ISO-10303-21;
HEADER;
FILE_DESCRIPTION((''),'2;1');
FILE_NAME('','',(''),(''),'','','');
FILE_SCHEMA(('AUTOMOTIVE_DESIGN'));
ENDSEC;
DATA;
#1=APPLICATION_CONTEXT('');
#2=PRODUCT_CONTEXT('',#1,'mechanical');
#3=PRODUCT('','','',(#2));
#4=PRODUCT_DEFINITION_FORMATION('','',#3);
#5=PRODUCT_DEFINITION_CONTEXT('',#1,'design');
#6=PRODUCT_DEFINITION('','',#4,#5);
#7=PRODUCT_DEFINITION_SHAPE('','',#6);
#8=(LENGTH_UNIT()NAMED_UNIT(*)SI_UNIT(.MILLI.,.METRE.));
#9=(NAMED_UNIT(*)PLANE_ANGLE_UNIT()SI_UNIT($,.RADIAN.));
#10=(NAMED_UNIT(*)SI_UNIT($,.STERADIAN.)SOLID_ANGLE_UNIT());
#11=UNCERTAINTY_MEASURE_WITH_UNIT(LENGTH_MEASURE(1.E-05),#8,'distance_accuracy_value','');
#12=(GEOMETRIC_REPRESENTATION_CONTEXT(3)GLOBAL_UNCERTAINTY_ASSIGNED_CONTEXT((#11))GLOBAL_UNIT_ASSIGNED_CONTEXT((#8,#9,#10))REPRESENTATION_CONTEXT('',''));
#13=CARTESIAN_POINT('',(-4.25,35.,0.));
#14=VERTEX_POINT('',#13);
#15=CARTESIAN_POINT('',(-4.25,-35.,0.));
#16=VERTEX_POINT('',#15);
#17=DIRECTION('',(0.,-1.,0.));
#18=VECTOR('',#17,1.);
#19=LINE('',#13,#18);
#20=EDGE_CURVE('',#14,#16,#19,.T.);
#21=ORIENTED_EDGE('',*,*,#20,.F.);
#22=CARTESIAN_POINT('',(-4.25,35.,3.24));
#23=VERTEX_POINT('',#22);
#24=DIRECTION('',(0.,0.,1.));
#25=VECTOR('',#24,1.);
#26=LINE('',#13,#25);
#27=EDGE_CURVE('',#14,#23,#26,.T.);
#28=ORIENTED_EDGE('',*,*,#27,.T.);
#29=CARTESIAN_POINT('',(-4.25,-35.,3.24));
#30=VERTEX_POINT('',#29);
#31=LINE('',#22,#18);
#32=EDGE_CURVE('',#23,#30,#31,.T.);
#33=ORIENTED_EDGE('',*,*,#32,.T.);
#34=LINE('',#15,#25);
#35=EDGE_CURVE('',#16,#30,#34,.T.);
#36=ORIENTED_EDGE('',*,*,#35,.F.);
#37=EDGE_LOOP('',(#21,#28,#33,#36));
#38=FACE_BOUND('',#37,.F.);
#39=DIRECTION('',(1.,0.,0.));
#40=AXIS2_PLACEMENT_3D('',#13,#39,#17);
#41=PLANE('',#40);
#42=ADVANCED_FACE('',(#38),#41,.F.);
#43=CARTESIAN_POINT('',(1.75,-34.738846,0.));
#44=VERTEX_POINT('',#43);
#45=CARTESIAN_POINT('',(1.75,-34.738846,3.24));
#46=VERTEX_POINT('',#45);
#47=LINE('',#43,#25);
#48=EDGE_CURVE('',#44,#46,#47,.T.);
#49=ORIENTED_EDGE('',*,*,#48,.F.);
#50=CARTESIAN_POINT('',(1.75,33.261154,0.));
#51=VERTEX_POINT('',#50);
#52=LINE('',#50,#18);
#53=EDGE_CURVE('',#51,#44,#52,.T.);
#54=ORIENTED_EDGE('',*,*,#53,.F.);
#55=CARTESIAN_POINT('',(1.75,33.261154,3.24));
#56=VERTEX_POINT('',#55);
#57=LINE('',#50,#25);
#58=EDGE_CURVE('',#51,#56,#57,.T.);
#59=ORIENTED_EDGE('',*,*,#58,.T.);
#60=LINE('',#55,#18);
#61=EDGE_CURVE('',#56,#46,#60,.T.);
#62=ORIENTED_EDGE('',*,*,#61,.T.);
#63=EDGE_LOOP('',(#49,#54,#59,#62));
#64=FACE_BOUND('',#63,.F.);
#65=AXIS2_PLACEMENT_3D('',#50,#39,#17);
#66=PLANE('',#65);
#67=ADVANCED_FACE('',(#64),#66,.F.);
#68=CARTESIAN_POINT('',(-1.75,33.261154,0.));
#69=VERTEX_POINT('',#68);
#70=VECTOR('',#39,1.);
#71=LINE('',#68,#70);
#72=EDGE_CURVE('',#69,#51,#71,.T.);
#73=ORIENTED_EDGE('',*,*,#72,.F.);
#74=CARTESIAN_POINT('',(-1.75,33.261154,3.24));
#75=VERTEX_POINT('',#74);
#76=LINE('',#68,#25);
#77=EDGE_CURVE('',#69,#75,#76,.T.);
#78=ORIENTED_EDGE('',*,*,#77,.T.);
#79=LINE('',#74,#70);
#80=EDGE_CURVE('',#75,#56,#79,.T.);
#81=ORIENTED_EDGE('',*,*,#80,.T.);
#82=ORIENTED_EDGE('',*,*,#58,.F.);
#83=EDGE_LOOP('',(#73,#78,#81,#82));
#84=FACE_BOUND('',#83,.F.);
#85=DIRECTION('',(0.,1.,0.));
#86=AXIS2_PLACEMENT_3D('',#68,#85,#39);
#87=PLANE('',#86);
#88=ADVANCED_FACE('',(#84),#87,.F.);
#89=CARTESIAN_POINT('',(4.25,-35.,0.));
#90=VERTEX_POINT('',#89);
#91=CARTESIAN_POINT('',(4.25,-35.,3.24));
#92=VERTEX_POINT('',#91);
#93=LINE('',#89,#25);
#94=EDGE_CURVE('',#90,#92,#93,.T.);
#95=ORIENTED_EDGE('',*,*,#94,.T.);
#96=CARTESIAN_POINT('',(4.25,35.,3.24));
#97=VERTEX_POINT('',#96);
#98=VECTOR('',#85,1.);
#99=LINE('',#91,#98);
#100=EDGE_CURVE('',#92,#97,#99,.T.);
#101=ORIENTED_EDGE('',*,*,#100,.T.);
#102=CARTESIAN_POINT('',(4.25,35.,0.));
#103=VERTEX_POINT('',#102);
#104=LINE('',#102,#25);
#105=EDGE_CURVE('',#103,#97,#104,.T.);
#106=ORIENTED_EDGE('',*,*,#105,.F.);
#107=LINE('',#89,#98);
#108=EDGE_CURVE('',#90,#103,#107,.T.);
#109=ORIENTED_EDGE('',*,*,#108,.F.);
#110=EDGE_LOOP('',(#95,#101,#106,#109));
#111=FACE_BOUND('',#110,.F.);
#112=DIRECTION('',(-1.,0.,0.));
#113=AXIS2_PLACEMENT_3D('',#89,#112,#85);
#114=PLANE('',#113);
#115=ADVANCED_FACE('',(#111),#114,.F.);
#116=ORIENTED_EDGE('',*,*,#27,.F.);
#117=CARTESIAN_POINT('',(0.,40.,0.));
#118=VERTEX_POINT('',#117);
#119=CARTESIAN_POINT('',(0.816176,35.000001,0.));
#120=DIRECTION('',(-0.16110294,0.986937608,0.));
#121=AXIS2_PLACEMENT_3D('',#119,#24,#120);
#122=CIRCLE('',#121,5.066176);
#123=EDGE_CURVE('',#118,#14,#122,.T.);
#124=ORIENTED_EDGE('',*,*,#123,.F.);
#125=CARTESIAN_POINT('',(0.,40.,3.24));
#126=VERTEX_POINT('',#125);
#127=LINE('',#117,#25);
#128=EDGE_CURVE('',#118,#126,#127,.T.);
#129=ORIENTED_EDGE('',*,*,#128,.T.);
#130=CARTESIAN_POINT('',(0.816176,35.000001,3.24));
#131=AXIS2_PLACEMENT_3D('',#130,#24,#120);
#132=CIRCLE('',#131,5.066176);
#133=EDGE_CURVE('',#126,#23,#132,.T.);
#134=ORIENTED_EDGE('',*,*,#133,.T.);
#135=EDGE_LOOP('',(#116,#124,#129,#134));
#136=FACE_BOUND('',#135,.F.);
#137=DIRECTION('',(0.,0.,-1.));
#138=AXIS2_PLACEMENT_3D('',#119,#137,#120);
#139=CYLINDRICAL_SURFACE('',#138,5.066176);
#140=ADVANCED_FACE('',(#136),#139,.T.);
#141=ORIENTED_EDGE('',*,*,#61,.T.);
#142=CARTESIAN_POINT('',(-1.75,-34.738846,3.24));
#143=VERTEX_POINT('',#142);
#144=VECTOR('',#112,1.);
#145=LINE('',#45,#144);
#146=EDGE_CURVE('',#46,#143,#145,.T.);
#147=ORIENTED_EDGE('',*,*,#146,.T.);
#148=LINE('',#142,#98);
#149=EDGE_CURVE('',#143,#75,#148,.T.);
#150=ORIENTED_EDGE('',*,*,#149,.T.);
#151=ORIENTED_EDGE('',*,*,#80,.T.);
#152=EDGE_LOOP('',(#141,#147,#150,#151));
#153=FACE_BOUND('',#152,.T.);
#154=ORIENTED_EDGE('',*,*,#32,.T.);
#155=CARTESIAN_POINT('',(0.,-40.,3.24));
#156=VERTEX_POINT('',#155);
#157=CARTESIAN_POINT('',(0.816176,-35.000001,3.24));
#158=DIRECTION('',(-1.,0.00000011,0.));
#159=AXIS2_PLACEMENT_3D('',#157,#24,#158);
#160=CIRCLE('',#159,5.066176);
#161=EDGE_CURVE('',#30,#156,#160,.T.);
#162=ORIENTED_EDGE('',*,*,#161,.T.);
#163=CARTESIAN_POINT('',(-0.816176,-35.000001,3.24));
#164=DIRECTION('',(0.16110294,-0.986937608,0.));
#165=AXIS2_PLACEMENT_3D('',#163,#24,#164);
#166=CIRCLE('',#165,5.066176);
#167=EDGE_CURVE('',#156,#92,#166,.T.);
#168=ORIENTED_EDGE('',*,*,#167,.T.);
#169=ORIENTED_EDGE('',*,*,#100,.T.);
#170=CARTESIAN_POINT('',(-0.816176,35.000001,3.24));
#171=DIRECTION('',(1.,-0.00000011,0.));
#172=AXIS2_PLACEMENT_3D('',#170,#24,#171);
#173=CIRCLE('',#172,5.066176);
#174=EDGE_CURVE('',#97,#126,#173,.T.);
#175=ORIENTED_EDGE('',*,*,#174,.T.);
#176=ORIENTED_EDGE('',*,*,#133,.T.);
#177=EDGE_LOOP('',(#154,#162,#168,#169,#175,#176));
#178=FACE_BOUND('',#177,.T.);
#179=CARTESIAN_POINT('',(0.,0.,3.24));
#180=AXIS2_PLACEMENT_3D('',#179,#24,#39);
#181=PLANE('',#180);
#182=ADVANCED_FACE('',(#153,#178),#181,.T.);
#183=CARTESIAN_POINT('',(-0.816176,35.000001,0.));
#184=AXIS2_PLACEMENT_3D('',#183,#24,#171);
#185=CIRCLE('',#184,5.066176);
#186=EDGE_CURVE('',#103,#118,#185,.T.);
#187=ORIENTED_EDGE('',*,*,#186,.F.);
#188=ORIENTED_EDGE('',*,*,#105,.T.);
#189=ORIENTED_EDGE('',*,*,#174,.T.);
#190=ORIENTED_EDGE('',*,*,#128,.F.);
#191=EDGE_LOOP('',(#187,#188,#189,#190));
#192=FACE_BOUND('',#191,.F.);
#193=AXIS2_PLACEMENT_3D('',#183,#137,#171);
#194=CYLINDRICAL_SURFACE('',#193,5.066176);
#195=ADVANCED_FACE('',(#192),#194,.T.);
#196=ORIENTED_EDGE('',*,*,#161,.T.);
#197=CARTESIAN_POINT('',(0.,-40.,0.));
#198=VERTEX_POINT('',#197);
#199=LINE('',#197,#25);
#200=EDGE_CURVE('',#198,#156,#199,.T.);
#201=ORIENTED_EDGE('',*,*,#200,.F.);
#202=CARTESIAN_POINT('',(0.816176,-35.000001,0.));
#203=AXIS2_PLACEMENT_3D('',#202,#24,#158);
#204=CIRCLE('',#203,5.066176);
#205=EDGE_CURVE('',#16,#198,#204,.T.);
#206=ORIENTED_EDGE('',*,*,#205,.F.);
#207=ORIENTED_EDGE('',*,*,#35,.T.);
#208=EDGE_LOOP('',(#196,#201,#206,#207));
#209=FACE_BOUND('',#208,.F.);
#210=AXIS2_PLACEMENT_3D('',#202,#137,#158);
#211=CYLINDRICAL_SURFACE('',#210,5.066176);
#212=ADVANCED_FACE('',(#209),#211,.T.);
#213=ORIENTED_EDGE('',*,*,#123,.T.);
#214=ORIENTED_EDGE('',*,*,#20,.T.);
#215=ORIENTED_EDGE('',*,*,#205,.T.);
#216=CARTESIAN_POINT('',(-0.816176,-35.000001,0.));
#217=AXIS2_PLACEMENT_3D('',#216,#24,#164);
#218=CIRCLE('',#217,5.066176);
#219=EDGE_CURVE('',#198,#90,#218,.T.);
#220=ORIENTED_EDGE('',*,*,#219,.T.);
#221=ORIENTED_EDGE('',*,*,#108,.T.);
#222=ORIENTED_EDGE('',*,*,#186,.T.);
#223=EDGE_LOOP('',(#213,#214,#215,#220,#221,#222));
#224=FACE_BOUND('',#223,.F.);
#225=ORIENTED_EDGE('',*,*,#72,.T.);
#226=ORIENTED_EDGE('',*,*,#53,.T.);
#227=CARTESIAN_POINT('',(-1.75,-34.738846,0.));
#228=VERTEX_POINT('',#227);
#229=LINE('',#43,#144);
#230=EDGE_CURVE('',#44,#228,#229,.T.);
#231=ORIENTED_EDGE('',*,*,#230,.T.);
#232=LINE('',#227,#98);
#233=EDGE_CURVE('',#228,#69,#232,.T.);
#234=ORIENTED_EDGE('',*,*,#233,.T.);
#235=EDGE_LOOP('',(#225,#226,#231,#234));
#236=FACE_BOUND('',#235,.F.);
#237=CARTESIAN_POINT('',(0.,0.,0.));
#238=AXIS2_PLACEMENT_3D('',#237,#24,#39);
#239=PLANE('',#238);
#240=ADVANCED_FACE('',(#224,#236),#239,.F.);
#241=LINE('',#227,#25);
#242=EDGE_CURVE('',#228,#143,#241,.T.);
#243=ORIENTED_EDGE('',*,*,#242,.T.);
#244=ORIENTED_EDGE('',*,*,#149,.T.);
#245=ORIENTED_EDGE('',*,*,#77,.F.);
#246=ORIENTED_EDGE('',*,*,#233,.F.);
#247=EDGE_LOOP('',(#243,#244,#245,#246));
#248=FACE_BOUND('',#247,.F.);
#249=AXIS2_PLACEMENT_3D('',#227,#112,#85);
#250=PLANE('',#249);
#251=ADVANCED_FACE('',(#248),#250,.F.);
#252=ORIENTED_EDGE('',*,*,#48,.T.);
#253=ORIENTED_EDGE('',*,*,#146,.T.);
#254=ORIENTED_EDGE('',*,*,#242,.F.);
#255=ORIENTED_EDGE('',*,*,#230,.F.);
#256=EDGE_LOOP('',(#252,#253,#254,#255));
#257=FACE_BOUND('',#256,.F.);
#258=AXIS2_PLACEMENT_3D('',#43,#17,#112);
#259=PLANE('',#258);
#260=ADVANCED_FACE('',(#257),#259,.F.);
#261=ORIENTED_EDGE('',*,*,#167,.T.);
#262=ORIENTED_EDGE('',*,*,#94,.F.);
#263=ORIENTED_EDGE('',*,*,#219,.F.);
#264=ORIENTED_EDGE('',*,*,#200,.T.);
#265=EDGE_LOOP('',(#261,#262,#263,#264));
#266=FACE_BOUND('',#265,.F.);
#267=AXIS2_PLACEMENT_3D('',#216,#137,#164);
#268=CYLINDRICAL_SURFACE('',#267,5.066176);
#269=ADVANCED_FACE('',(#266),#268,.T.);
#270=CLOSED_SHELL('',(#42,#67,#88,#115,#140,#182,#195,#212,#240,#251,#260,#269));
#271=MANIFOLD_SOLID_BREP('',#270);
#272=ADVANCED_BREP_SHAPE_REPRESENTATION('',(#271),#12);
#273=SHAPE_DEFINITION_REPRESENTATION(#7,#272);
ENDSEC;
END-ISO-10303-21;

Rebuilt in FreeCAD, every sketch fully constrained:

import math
import FreeCAD as App
import Part
import Sketcher

doc = App.newDocument("Part")
body = doc.addObject("PartDesign::Body", "Body")

# Sketch on XY plane
sketch1 = body.newObject("Sketcher::SketchObject", "Sketch")
sketch1.AttachmentSupport = (doc.getObject("XY_Plane"), [""])
sketch1.MapMode = "FlatFace"
sketch1.addGeometry([
    Part.LineSegment(App.Vector(4.2, -35, 0), App.Vector(4.2, 35, 0)),  # 0
    Part.ArcOfCircle(Part.Circle(App.Vector(-0.8, 35, 0), App.Vector(0, 0, 1), 5.1), math.radians(0), math.radians(81)),  # 1
    Part.ArcOfCircle(Part.Circle(App.Vector(0.8, 35, 0), App.Vector(0, 0, 1), 5.1), math.radians(99), math.radians(180)),  # 2
    Part.LineSegment(App.Vector(-4.2, 35, 0), App.Vector(-4.2, -35, 0)),  # 3
    Part.ArcOfCircle(Part.Circle(App.Vector(0.8, -35, 0), App.Vector(0, 0, 1), 5.1), math.radians(180), math.radians(261)),  # 4
    Part.ArcOfCircle(Part.Circle(App.Vector(-0.8, -35, 0), App.Vector(0, 0, 1), 5.1), math.radians(-81), math.radians(0)),  # 5
    Part.LineSegment(App.Vector(1.8, 33.3, 0), App.Vector(1.8, -34.7, 0)),  # 6
    Part.LineSegment(App.Vector(1.8, -34.7, 0), App.Vector(-1.8, -34.7, 0)),  # 7
    Part.LineSegment(App.Vector(-1.8, -34.7, 0), App.Vector(-1.8, 33.3, 0)),  # 8
    Part.LineSegment(App.Vector(-1.8, 33.3, 0), App.Vector(1.8, 33.3, 0)),  # 9
], False)
sketch1.addConstraint([
    Sketcher.Constraint("Tangent", 0, 2, 1, 1),
    Sketcher.Constraint("Coincident", 1, 2, 2, 1),
    Sketcher.Constraint("Tangent", 2, 2, 3, 1),
    Sketcher.Constraint("Tangent", 3, 2, 4, 1),
    Sketcher.Constraint("Coincident", 4, 2, 5, 1),
    Sketcher.Constraint("Tangent", 5, 2, 0, 1),
    Sketcher.Constraint("Coincident", 6, 2, 7, 1),
    Sketcher.Constraint("Coincident", 7, 2, 8, 1),
    Sketcher.Constraint("Coincident", 8, 2, 9, 1),
    Sketcher.Constraint("Coincident", 9, 2, 6, 1),
    Sketcher.Constraint("Vertical", 0),
    Sketcher.Constraint("Vertical", 3),
    Sketcher.Constraint("Vertical", 6),
    Sketcher.Constraint("Horizontal", 7),
    Sketcher.Constraint("Vertical", 8),
    Sketcher.Constraint("Horizontal", 9),
    Sketcher.Constraint("Equal", 1, 2),
    Sketcher.Constraint("Equal", 2, 4),
    Sketcher.Constraint("Equal", 4, 5),
    Sketcher.Constraint("Symmetric", 1, 3, 4, 3, -1, 1),
    Sketcher.Constraint("Symmetric", 1, 2, 4, 2, -1),
    Sketcher.Constraint("DistanceY", 0, 1, 0, 2, 70.0),
    Sketcher.Constraint("DistanceY", 6, 2, 6, 1, 68.0),
    Sketcher.Constraint("DistanceX", 7, 2, 7, 1, 3.5),
    Sketcher.Constraint("DistanceY", -1, 1, 1, 2, 40.0),
    Sketcher.Constraint("DistanceX", 3, 2, 6, 2, 6.0),
    Sketcher.Constraint("DistanceX", 8, 2, 0, 2, 6.0),
    Sketcher.Constraint("DistanceY", 6, 2, -1, 1, 34.738846),
])
pad1 = body.newObject("PartDesign::Pad", "Pad")
pad1.Profile = sketch1
pad1.Length = 3.24

doc.recompute()
